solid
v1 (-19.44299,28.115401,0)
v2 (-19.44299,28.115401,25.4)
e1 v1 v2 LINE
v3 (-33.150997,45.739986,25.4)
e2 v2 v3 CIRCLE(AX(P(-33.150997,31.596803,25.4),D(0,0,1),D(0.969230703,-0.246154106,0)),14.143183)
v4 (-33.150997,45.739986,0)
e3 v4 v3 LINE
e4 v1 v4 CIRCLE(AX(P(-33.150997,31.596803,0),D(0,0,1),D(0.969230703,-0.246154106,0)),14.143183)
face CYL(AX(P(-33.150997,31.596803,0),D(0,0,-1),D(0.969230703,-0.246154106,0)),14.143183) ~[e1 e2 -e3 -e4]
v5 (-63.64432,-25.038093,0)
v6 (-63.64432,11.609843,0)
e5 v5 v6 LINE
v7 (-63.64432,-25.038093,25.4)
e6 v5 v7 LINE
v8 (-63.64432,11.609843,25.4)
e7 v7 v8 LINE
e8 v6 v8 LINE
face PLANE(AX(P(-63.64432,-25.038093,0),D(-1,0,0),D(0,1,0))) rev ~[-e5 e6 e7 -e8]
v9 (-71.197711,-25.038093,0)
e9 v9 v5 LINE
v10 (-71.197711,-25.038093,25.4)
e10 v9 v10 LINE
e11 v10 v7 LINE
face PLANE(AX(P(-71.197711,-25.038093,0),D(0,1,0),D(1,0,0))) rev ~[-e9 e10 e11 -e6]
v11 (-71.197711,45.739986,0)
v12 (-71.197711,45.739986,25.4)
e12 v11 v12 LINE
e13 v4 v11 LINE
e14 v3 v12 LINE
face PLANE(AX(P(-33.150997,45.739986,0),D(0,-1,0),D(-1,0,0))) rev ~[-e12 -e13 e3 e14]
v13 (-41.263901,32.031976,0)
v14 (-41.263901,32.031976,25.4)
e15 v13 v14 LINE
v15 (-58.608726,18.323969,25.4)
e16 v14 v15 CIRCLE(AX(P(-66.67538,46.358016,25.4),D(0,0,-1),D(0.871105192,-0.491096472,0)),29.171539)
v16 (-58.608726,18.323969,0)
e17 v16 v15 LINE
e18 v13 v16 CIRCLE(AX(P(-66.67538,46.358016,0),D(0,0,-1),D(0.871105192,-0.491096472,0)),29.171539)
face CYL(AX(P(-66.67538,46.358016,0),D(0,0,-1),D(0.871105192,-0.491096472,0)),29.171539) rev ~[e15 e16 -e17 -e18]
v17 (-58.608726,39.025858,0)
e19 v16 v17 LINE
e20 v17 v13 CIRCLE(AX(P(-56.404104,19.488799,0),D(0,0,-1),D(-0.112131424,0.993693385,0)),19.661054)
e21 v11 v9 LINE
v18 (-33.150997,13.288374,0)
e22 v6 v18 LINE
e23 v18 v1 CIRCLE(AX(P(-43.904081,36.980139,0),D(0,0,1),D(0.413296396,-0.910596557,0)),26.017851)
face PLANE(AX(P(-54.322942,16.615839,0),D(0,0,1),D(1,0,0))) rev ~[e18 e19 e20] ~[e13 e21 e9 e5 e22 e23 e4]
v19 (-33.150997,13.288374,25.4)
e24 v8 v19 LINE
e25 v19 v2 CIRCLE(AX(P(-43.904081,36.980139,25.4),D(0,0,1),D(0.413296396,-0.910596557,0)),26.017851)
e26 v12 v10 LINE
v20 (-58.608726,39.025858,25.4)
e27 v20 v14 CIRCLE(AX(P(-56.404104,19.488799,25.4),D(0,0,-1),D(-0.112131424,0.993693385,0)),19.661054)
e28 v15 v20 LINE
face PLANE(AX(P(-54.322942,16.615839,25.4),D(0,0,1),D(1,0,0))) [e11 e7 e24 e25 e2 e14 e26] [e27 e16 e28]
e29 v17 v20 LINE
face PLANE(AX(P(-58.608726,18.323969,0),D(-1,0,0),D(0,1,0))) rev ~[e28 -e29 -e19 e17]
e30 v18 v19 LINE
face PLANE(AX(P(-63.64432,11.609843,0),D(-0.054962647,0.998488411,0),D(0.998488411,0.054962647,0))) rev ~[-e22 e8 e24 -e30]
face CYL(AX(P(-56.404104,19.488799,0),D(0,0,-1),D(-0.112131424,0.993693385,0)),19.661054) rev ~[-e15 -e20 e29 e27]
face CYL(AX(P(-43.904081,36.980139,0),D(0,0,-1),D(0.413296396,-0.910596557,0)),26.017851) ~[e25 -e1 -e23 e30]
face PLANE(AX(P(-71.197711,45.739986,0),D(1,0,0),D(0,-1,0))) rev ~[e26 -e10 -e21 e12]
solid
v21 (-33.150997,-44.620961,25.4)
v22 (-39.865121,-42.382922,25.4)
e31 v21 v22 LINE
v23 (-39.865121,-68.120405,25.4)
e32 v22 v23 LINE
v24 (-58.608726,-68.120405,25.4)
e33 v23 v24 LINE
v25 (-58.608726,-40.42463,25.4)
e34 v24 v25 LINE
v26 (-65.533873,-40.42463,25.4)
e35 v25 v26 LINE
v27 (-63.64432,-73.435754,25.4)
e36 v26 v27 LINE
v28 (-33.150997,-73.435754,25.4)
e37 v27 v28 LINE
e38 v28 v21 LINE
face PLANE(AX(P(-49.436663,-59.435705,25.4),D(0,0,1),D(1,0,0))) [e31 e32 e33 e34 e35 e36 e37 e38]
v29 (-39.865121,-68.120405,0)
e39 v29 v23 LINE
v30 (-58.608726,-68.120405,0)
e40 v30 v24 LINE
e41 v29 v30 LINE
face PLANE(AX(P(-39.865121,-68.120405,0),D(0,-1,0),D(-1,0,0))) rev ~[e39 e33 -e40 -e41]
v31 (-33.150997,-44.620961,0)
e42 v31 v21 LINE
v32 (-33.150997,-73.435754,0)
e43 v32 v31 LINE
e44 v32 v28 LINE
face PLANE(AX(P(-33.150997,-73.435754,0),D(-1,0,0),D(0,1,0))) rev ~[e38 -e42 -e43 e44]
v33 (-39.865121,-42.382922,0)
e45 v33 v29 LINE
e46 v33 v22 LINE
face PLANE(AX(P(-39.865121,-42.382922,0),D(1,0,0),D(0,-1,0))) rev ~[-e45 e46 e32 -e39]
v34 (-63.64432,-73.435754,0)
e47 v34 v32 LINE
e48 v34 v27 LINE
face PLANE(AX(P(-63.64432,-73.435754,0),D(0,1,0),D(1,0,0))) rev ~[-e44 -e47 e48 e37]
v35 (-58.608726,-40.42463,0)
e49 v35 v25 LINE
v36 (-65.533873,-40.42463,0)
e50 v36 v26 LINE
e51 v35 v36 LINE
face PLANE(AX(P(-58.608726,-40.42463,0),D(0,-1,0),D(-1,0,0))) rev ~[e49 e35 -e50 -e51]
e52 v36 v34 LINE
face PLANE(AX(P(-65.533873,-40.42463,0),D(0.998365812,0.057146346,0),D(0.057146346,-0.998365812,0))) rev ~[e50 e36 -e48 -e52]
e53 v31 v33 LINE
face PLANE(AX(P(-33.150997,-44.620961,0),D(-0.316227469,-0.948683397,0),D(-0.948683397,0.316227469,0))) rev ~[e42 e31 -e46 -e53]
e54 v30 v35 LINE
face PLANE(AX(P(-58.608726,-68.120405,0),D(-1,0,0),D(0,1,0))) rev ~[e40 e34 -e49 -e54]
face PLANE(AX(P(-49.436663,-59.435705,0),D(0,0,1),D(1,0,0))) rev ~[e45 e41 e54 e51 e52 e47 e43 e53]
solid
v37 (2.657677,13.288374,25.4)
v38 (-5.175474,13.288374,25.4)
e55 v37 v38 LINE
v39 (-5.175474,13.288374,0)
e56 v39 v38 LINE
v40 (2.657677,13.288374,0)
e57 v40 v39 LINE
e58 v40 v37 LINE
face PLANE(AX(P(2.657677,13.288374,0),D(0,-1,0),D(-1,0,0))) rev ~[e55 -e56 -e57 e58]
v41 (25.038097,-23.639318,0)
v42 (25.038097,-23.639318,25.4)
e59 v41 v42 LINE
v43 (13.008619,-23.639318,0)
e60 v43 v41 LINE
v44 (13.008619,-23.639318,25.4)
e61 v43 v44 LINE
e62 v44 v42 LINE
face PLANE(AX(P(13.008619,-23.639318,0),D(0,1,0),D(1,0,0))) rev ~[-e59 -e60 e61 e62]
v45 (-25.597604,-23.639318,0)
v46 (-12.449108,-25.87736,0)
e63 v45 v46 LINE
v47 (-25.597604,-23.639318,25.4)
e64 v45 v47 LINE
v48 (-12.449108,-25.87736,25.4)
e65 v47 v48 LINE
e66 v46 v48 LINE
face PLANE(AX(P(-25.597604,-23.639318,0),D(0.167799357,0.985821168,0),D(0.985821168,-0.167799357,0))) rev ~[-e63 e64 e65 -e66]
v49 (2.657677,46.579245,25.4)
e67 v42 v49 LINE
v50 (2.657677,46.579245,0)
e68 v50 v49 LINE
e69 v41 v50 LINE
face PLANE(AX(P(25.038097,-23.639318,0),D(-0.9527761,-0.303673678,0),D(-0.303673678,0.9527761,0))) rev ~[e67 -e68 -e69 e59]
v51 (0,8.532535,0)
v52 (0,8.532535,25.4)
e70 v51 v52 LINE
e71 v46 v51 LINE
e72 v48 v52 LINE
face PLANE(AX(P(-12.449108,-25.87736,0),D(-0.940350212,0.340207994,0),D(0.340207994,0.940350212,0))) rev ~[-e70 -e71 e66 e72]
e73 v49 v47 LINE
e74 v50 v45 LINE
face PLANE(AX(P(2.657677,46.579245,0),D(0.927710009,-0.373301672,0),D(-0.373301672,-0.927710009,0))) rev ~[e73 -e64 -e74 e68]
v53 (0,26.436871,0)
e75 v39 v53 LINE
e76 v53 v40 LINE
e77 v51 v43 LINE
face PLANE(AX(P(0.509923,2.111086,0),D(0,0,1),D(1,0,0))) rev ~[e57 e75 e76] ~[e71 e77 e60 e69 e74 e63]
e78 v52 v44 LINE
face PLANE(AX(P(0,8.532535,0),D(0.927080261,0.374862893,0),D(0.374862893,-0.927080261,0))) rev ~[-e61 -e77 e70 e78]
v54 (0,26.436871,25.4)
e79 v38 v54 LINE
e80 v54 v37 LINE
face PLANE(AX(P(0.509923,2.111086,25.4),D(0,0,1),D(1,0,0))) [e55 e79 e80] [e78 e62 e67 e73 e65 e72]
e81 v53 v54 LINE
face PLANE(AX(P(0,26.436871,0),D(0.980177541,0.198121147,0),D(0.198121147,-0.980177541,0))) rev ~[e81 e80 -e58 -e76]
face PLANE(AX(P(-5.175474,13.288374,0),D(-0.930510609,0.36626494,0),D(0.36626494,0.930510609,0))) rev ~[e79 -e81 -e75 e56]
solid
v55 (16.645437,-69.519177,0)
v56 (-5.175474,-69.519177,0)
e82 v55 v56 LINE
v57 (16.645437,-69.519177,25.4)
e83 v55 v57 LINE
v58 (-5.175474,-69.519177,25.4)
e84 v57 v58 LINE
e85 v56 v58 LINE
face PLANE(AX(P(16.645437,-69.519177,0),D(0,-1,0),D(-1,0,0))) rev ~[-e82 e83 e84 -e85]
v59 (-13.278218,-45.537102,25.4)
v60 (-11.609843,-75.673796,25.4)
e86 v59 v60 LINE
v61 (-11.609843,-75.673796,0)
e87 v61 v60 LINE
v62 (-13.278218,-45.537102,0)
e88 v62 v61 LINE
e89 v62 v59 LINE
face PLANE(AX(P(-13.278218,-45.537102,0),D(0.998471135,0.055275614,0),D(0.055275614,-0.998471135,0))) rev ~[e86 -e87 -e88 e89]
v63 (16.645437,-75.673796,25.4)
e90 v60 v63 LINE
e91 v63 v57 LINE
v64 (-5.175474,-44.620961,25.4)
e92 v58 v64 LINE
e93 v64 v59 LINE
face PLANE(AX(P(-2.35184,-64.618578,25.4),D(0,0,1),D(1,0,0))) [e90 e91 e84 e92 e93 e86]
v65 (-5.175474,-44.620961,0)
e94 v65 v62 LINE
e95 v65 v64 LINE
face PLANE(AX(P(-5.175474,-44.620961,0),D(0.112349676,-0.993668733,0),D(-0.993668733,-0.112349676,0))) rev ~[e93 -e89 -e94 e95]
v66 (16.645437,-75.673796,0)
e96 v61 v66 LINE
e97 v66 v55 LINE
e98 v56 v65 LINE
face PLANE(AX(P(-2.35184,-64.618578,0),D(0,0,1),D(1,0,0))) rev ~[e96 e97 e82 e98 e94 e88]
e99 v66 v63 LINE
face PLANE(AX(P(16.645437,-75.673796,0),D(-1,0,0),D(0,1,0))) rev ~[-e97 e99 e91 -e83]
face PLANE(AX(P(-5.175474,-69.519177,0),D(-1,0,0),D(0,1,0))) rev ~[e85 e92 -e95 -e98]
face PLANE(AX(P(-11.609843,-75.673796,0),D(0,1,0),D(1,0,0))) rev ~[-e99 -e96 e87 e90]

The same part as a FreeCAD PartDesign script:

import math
import FreeCAD as App
import Part
import Sketcher
Q = App.Units.Quantity

doc = App.newDocument("Part")
body = doc.addObject("PartDesign::Body", "Body")
body.AllowCompound = True

# Sketch on XY plane
sketch1 = doc.addObject("Sketcher::SketchObject", "Sketch")
body.addObject(sketch1)
sketch1.AttachmentSupport = (doc.XY_Plane, [""])
sketch1.MapMode = "FlatFace"
sketch1.addGeometry([
    Part.LineSegment(App.Vector(-33, 46, 0), App.Vector(-71, 46, 0)),  # 0
    Part.LineSegment(App.Vector(-71, 46, 0), App.Vector(-71, -25, 0)),  # 1
    Part.LineSegment(App.Vector(-71, -25, 0), App.Vector(-64, -25, 0)),  # 2
    Part.LineSegment(App.Vector(-64, -25, 0), App.Vector(-64, 12, 0)),  # 3
    Part.LineSegment(App.Vector(-64, 12, 0), App.Vector(-33, 13, 0)),  # 4
    Part.ArcOfCircle(Part.Circle(App.Vector(-44, 37, 0), App.Vector(0, 0, 1), 26), math.radians(-66), math.radians(-20)),  # 5
    Part.ArcOfCircle(Part.Circle(App.Vector(-33, 32, 0), App.Vector(0, 0, 1), 14), math.radians(-14), math.radians(90)),  # 6
    Part.ArcOfCircle(Part.Circle(App.Vector(-67, 46, 0), App.Vector(0, 0, 1), 29), math.radians(-74), math.radians(-29)),  # 7
    Part.LineSegment(App.Vector(-59, 18, 0), App.Vector(-59, 39, 0)),  # 8
    Part.ArcOfCircle(Part.Circle(App.Vector(-56, 19, 0), App.Vector(0, 0, 1), 20), math.radians(40), math.radians(96)),  # 9
    Part.LineSegment(App.Vector(25, -24, 0), App.Vector(3, 47, 0)),  # 10
    Part.LineSegment(App.Vector(3, 47, 0), App.Vector(-26, -24, 0)),  # 11
    Part.LineSegment(App.Vector(-26, -24, 0), App.Vector(-12, -26, 0)),  # 12
    Part.LineSegment(App.Vector(-12, -26, 0), App.Vector(0, 9, 0)),  # 13
    Part.LineSegment(App.Vector(0, 9, 0), App.Vector(13, -24, 0)),  # 14
    Part.LineSegment(App.Vector(13, -24, 0), App.Vector(25, -24, 0)),  # 15
    Part.LineSegment(App.Vector(3, 13, 0), App.Vector(-5, 13, 0)),  # 16
    Part.LineSegment(App.Vector(-5, 13, 0), App.Vector(0, 26, 0)),  # 17
    Part.LineSegment(App.Vector(0, 26, 0), App.Vector(3, 13, 0)),  # 18
    Part.LineSegment(App.Vector(-59, -68, 0), App.Vector(-59, -40, 0)),  # 19
    Part.LineSegment(App.Vector(-59, -40, 0), App.Vector(-66, -40, 0)),  # 20
    Part.LineSegment(App.Vector(-66, -40, 0), App.Vector(-64, -73, 0)),  # 21
    Part.LineSegment(App.Vector(-64, -73, 0), App.Vector(-33, -73, 0)),  # 22
    Part.LineSegment(App.Vector(-33, -73, 0), App.Vector(-33, -45, 0)),  # 23
    Part.LineSegment(App.Vector(-33, -45, 0), App.Vector(-40, -42, 0)),  # 24
    Part.LineSegment(App.Vector(-40, -42, 0), App.Vector(-40, -68, 0)),  # 25
    Part.LineSegment(App.Vector(-40, -68, 0), App.Vector(-59, -68, 0)),  # 26
    Part.LineSegment(App.Vector(-5, -70, 0), App.Vector(-5, -45, 0)),  # 27
    Part.LineSegment(App.Vector(-5, -45, 0), App.Vector(-13, -46, 0)),  # 28
    Part.LineSegment(App.Vector(-13, -46, 0), App.Vector(-12, -76, 0)),  # 29
    Part.LineSegment(App.Vector(-12, -76, 0), App.Vector(17, -76, 0)),  # 30
    Part.LineSegment(App.Vector(17, -76, 0), App.Vector(17, -70, 0)),  # 31
    Part.LineSegment(App.Vector(17, -70, 0), App.Vector(-5, -70, 0)),  # 32
], False)
sketch1.addConstraint([
    Sketcher.Constraint("Coincident", 0, 2, 1, 1),
    Sketcher.Constraint("Coincident", 1, 2, 2, 1),
    Sketcher.Constraint("Coincident", 2, 2, 3, 1),
    Sketcher.Constraint("Coincident", 3, 2, 4, 1),
    Sketcher.Constraint("Coincident", 4, 2, 5, 1),
    Sketcher.Constraint("Coincident", 5, 2, 6, 1),
    Sketcher.Constraint("Tangent", 6, 2, 0, 1),
    Sketcher.Constraint("Coincident", 7, 1, 8, 1),
    Sketcher.Constraint("Coincident", 8, 2, 9, 2),
    Sketcher.Constraint("Coincident", 9, 1, 7, 2),
    Sketcher.Constraint("Coincident", 10, 2, 11, 1),
    Sketcher.Constraint("Coincident", 11, 2, 12, 1),
    Sketcher.Constraint("Coincident", 12, 2, 13, 1),
    Sketcher.Constraint("Coincident", 13, 2, 14, 1),
    Sketcher.Constraint("Coincident", 14, 2, 15, 1),
    Sketcher.Constraint("Coincident", 15, 2, 10, 1),
    Sketcher.Constraint("Coincident", 16, 2, 17, 1),
    Sketcher.Constraint("Coincident", 17, 2, 18, 1),
    Sketcher.Constraint("Coincident", 18, 2, 16, 1),
    Sketcher.Constraint("Coincident", 19, 2, 20, 1),
    Sketcher.Constraint("Coincident", 20, 2, 21, 1),
    Sketcher.Constraint("Coincident", 21, 2, 22, 1),
    Sketcher.Constraint("Coincident", 22, 2, 23, 1),
    Sketcher.Constraint("Coincident", 23, 2, 24, 1),
    Sketcher.Constraint("Coincident", 24, 2, 25, 1),
    Sketcher.Constraint("Coincident", 25, 2, 26, 1),
    Sketcher.Constraint("Coincident", 26, 2, 19, 1),
    Sketcher.Constraint("Coincident", 27, 2, 28, 1),
    Sketcher.Constraint("Coincident", 28, 2, 29, 1),
    Sketcher.Constraint("Coincident", 29, 2, 30, 1),
    Sketcher.Constraint("Coincident", 30, 2, 31, 1),
    Sketcher.Constraint("Coincident", 31, 2, 32, 1),
    Sketcher.Constraint("Coincident", 32, 2, 27, 1),
    Sketcher.Constraint("Horizontal", 0),
    Sketcher.Constraint("Vertical", 1),
    Sketcher.Constraint("Horizontal", 2),
    Sketcher.Constraint("Vertical", 3),
    Sketcher.Constraint("Vertical", 8),
    Sketcher.Constraint("Horizontal", 15),
    Sketcher.Constraint("Horizontal", 16),
    Sketcher.Constraint("Vertical", 19),
    Sketcher.Constraint("Horizontal", 20),
    Sketcher.Constraint("Horizontal", 22),
    Sketcher.Constraint("Vertical", 23),
    Sketcher.Constraint("Vertical", 25),
    Sketcher.Constraint("Horizontal", 26),
    Sketcher.Constraint("Vertical", 27),
    Sketcher.Constraint("Horizontal", 30),
    Sketcher.Constraint("Vertical", 31),
    Sketcher.Constraint("Horizontal", 32),
    Sketcher.Constraint("PointOnObject", 13, 2, -2),
    Sketcher.Constraint("PointOnObject", 17, 2, -2),
    Sketcher.Constraint("Horizontal", 11, 2, 14, 2),
    Sketcher.Constraint("Horizontal", 4, 2, 16, 2),
    Sketcher.Constraint("Horizontal", 23, 2, 27, 2),
    Sketcher.Constraint("Vertical", 6, 3, 4, 2),
    Sketcher.Constraint("Vertical", 10, 2, 18, 2),
    Sketcher.Constraint("Vertical", 8, 2, 19, 2),
    Sketcher.Constraint("Vertical", 3, 2, 21, 2),
    Sketcher.Constraint("Vertical", 6, 2, 22, 2),
    Sketcher.Constraint("Vertical", 16, 2, 27, 2),
    Sketcher.Constraint("Radius", 5, Q("26.017851 mm")),
    Sketcher.Constraint("Radius", 7, Q("29.171539 mm")),
    Sketcher.Constraint("Radius", 6, Q("14.143183 mm")),
    Sketcher.Constraint("Radius", 9, Q("19.661054 mm")),
    Sketcher.Constraint("DistanceX", 2, 1, 2, 2, Q("7.553391 mm")),
    Sketcher.Constraint("DistanceX", 15, 1, 15, 2, Q("12.029478 mm")),
    Sketcher.Constraint("DistanceX", 16, 2, 16, 1, Q("7.833151 mm")),
    Sketcher.Constraint("DistanceX", 30, 1, 30, 2, Q("28.25528 mm")),
    Sketcher.Constraint("DistanceX", 32, 2, 32, 1, Q("21.820911 mm")),
    Sketcher.Constraint("DistanceY", 1, 2, 1, 1, Q("70.778079 mm")),
    Sketcher.Constraint("DistanceY", 8, 1, 8, 2, Q("20.701889 mm")),
    Sketcher.Constraint("DistanceY", 31, 1, 31, 2, Q("6.154619 mm")),
    Sketcher.Constraint("DistanceY", -1, 1, 9, 3, Q("19.488799 mm")),
    Sketcher.Constraint("DistanceY", -1, 1, 5, 2, Q("28.115401 mm")),
    Sketcher.Constraint("DistanceX", 9, 1, -1, 1, Q("41.263901 mm")),
    Sketcher.Constraint("DistanceY", 28, 2, -1, 1, Q("45.537102 mm")),
    Sketcher.Constraint("DistanceX", 7, 3, 5, 3, Q("22.771299 mm")),
    Sketcher.Constraint("DistanceX", 11, 2, 15, 2, Q("50.635701 mm")),
    Sketcher.Constraint("DistanceY", 23, 2, 12, 2, Q("18.743601 mm")),
    Sketcher.Constraint("DistanceX", 2, 2, 24, 2, Q("23.779199 mm")),
    Sketcher.Constraint("Distance", 13, Q("36.592638 mm")),
    Sketcher.Constraint("Distance", 14, Q("34.702338 mm")),
    Sketcher.Constraint("Distance", 17, Q("14.130411 mm")),
    Sketcher.Constraint("Distance", 21, Q("33.065159 mm")),
    Sketcher.Constraint("Distance", 28, Q("8.154372 mm")),
    Sketcher.Constraint("Distance", 29, Q("30.18284 mm")),
    Sketcher.Constraint("DistanceX", 0, 2, 0, 1, Q("38.046714 mm")),
    Sketcher.Constraint("DistanceX", 20, 2, 20, 1, Q("6.925147 mm")),
    Sketcher.Constraint("DistanceX", 26, 2, 26, 1, Q("18.743605 mm")),
    Sketcher.Constraint("DistanceY", 3, 1, 3, 2, Q("36.647936 mm")),
    Sketcher.Constraint("DistanceY", 19, 1, 19, 2, Q("27.695775 mm")),
    Sketcher.Constraint("DistanceY", 23, 1, 23, 2, Q("28.814793 mm")),
    Sketcher.Constraint("DistanceY", 25, 2, 25, 1, Q("25.737483 mm")),
    Sketcher.Constraint("DistanceY", 27, 1, 27, 2, Q("24.898216 mm")),
    Sketcher.Constraint("DistanceX", 5, 3, -1, 1, Q("43.904081 mm")),
    Sketcher.Constraint("DistanceY", -1, 1, 5, 3, Q("36.980139 mm")),
    Sketcher.Constraint("DistanceX", 0, 2, -1, 1, Q("71.197711 mm")),
    Sketcher.Constraint("DistanceX", 12, 2, -1, 1, Q("12.449108 mm")),
    Sketcher.Constraint("DistanceX", -1, 1, 14, 2, Q("13.008619 mm")),
    Sketcher.Constraint("DistanceY", -1, 1, 17, 2, Q("26.436871 mm")),
    Sketcher.Constraint("DistanceY", 6, 2, 10, 2, Q("0.839259 mm")),
])
pad1 = doc.addObject("PartDesign::Pad", "Pad")
body.addObject(pad1)
pad1.Profile = sketch1
pad1.Length = Q("1 in")

doc.recompute()
